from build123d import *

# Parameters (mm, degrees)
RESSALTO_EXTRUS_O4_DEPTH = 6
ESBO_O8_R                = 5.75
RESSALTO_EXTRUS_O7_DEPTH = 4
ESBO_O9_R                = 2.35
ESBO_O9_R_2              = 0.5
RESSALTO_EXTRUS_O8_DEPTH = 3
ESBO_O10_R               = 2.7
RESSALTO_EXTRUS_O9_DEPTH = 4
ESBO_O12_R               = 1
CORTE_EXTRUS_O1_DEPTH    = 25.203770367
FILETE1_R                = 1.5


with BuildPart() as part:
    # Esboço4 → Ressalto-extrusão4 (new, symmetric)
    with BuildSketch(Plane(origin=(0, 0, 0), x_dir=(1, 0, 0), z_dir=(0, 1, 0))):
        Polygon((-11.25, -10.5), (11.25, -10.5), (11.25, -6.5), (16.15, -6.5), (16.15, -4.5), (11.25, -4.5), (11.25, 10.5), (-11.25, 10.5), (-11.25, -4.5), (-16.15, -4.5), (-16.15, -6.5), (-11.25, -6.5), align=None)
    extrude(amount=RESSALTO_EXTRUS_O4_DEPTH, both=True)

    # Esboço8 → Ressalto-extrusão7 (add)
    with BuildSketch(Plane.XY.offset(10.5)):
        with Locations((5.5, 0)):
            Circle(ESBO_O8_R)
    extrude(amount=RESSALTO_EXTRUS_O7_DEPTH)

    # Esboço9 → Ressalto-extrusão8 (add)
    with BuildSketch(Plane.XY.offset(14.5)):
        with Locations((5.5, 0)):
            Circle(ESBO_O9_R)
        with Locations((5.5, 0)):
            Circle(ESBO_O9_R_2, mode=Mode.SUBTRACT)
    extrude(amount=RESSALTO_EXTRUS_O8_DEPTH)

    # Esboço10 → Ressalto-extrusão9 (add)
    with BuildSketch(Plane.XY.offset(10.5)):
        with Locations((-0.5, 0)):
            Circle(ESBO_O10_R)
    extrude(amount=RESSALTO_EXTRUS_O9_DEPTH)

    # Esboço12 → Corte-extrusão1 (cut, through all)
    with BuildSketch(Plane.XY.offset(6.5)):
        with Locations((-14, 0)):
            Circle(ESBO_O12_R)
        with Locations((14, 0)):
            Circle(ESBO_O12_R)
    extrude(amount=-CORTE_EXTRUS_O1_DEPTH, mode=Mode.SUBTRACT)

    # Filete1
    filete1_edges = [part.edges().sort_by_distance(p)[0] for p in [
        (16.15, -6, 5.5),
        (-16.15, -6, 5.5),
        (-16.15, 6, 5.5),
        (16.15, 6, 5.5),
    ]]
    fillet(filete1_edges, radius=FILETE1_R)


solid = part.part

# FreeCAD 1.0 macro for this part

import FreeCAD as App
import Part
import Sketcher
from FreeCAD import Vector
Q = App.Units.Quantity


def edges_at(feature, points):
    """Names of the edges that pass closest to the given points."""
    edges = feature.Shape.Edges
    near = lambda p: min(range(len(edges)), key=lambda i: edges[i].distToShape(Part.Vertex(*p))[0])
    return sorted({f"Edge{near(p) + 1}" for p in points})

doc = App.newDocument("Part")
body = doc.addObject("PartDesign::Body", "Body")

# Sketch on XZ plane
sketch1 = doc.addObject("Sketcher::SketchObject", "Sketch")
body.addObject(sketch1)
sketch1.AttachmentSupport = (doc.XZ_Plane, [""])
sketch1.MapMode = "FlatFace"
sketch1.addGeometry(Part.LineSegment(Vector(-11.2, 10.5, 0), Vector(11.2, 10.5, 0)), False)
sketch1.addGeometry(Part.LineSegment(Vector(11.2, 10.5, 0), Vector(11.2, 6.5, 0)), False)
sketch1.addGeometry(Part.LineSegment(Vector(11.2, 6.5, 0), Vector(16.1, 6.5, 0)), False)
sketch1.addGeometry(Part.LineSegment(Vector(16.1, 6.5, 0), Vector(16.1, 4.5, 0)), False)
sketch1.addGeometry(Part.LineSegment(Vector(16.1, 4.5, 0), Vector(11.2, 4.5, 0)), False)
sketch1.addGeometry(Part.LineSegment(Vector(11.2, 4.5, 0), Vector(11.2, -10.5, 0)), False)
sketch1.addGeometry(Part.LineSegment(Vector(11.2, -10.5, 0), Vector(-11.2, -10.5, 0)), False)
sketch1.addGeometry(Part.LineSegment(Vector(-11.2, -10.5, 0), Vector(-11.2, 4.5, 0)), False)
sketch1.addGeometry(Part.LineSegment(Vector(-11.2, 4.5, 0), Vector(-16.1, 4.5, 0)), False)
sketch1.addGeometry(Part.LineSegment(Vector(-16.1, 4.5, 0), Vector(-16.1, 6.5, 0)), False)
sketch1.addGeometry(Part.LineSegment(Vector(-16.1, 6.5, 0), Vector(-11.2, 6.5, 0)), False)
sketch1.addGeometry(Part.LineSegment(Vector(-11.2, 6.5, 0), Vector(-11.2, 10.5, 0)), False)
sketch1.addConstraint(Sketcher.Constraint("Coincident", 0, 2, 1, 1))
sketch1.addConstraint(Sketcher.Constraint("Coincident", 1, 2, 2, 1))
sketch1.addConstraint(Sketcher.Constraint("Coincident", 2, 2, 3, 1))
sketch1.addConstraint(Sketcher.Constraint("Coincident", 3, 2, 4, 1))
sketch1.addConstraint(Sketcher.Constraint("Coincident", 4, 2, 5, 1))
sketch1.addConstraint(Sketcher.Constraint("Coincident", 5, 2, 6, 1))
sketch1.addConstraint(Sketcher.Constraint("Coincident", 6, 2, 7, 1))
sketch1.addConstraint(Sketcher.Constraint("Coincident", 7, 2, 8, 1))
sketch1.addConstraint(Sketcher.Constraint("Coincident", 8, 2, 9, 1))
sketch1.addConstraint(Sketcher.Constraint("Coincident", 9, 2, 10, 1))
sketch1.addConstraint(Sketcher.Constraint("Coincident", 10, 2, 11, 1))
sketch1.addConstraint(Sketcher.Constraint("Coincident", 11, 2, 0, 1))
sketch1.addConstraint(Sketcher.Constraint("Horizontal", 0))
sketch1.addConstraint(Sketcher.Constraint("Vertical", 1))
sketch1.addConstraint(Sketcher.Constraint("Horizontal", 2))
sketch1.addConstraint(Sketcher.Constraint("Vertical", 3))
sketch1.addConstraint(Sketcher.Constraint("Horizontal", 4))
sketch1.addConstraint(Sketcher.Constraint("Vertical", 5))
sketch1.addConstraint(Sketcher.Constraint("Horizontal", 6))
sketch1.addConstraint(Sketcher.Constraint("Vertical", 7))
sketch1.addConstraint(Sketcher.Constraint("Horizontal", 8))
sketch1.addConstraint(Sketcher.Constraint("Vertical", 9))
sketch1.addConstraint(Sketcher.Constraint("Horizontal", 10))
sketch1.addConstraint(Sketcher.Constraint("Vertical", 11))
sketch1.addConstraint(Sketcher.Constraint("Symmetric", 0, 2, 6, 2, -1, 1))
sketch1.addConstraint(Sketcher.Constraint("Symmetric", 4, 2, 7, 2, -2))
sketch1.addConstraint(Sketcher.Constraint("Symmetric", 2, 2, 9, 2, -2))
sketch1.addConstraint(Sketcher.Constraint("Vertical", 7, 2, 10, 2))
sketch1.addConstraint(Sketcher.Constraint("DistanceY", 1, 2, 1, 1, Q("4 mm")))
sketch1.addConstraint(Sketcher.Constraint("DistanceY", 3, 2, 3, 1, Q("2 mm")))
sketch1.addConstraint(Sketcher.Constraint("DistanceY", 5, 2, 5, 1, Q("15 mm")))
sketch1.addConstraint(Sketcher.Constraint("DistanceX", 0, 1, 0, 2, Q("22.5 mm")))
sketch1.addConstraint(Sketcher.Constraint("DistanceX", 2, 1, 2, 2, Q("4.9 mm")))
pad1 = doc.addObject("PartDesign::Pad", "Pad")
body.addObject(pad1)
pad1.Profile = sketch1
pad1.Length = 12
pad1.Midplane = True

# Sketch on XY plane
sketch2 = doc.addObject("Sketcher::SketchObject", "Sketch001")
body.addObject(sketch2)
sketch2.AttachmentSupport = (doc.XY_Plane, [""])
sketch2.MapMode = "FlatFace"
sketch2.AttachmentOffset = App.Placement(Vector(0, 0, 10.5), App.Rotation())
sketch2.addGeometry(Part.Circle(Vector(6, 0, 0), Vector(0, 0, 1), 6), False)
sketch2.addConstraint(Sketcher.Constraint("PointOnObject", 0, 3, -1))
sketch2.addConstraint(Sketcher.Constraint("Diameter", 0, Q("11.5 mm")))
sketch2.addConstraint(Sketcher.Constraint("DistanceX", -1, 1, 0, 3, Q("5.5 mm")))
pad2 = doc.addObject("PartDesign::Pad", "Pad001")
body.addObject(pad2)
pad2.Profile = sketch2
pad2.Length = 4

# Sketch on XY plane
sketch3 = doc.addObject("Sketcher::SketchObject", "Sketch002")
body.addObject(sketch3)
sketch3.AttachmentSupport = (doc.XY_Plane, [""])
sketch3.MapMode = "FlatFace"
sketch3.AttachmentOffset = App.Placement(Vector(0, 0, 14.5), App.Rotation())
sketch3.addGeometry(Part.Circle(Vector(5.5, 0, 0), Vector(0, 0, 1), 2.4), False)
sketch3.addGeometry(Part.Circle(Vector(5.5, 0, 0), Vector(0, 0, 1), 0.5), False)
sketch3.addConstraint(Sketcher.Constraint("Coincident", 1, 3, 0, 3))
sketch3.addConstraint(Sketcher.Constraint("PointOnObject", 0, 3, -1))
sketch3.addConstraint(Sketcher.Constraint("Diameter", 1, Q("1 mm")))
sketch3.addConstraint(Sketcher.Constraint("Diameter", 0, Q("4.7 mm")))
sketch3.addConstraint(Sketcher.Constraint("DistanceX", -1, 1, 0, 3, Q("5.5 mm")))
pad3 = doc.addObject("PartDesign::Pad", "Pad002")
body.addObject(pad3)
pad3.Profile = sketch3
pad3.Length = 3

# Sketch on XY plane
sketch4 = doc.addObject("Sketcher::SketchObject", "Sketch003")
body.addObject(sketch4)
sketch4.AttachmentSupport = (doc.XY_Plane, [""])
sketch4.MapMode = "FlatFace"
sketch4.AttachmentOffset = App.Placement(Vector(0, 0, 10.5), App.Rotation())
sketch4.addGeometry(Part.Circle(Vector(-0.5, 0, 0), Vector(0, 0, 1), 2.7), False)
sketch4.addConstraint(Sketcher.Constraint("PointOnObject", 0, 3, -1))
sketch4.addConstraint(Sketcher.Constraint("Diameter", 0, Q("5.4 mm")))
sketch4.addConstraint(Sketcher.Constraint("DistanceX", 0, 3, -1, 1, Q("0.5 mm")))
pad4 = doc.addObject("PartDesign::Pad", "Pad003")
body.addObject(pad4)
pad4.Profile = sketch4
pad4.Length = 4

# Sketch on XY plane
sketch5 = doc.addObject("Sketcher::SketchObject", "Sketch004")
body.addObject(sketch5)
sketch5.AttachmentSupport = (doc.XY_Plane, [""])
sketch5.MapMode = "FlatFace"
sketch5.AttachmentOffset = App.Placement(Vector(0, 0, 6.5), App.Rotation())
sketch5.addGeometry(Part.Circle(Vector(-14, 0, 0), Vector(0, 0, 1), 1), False)
sketch5.addGeometry(Part.Circle(Vector(14, 0, 0), Vector(0, 0, 1), 1), False)
sketch5.addConstraint(Sketcher.Constraint("Equal", 0, 1))
sketch5.addConstraint(Sketcher.Constraint("Symmetric", 0, 3, 1, 3, -1, 1))
sketch5.addConstraint(Sketcher.Constraint("PointOnObject", 0, 3, -1))
sketch5.addConstraint(Sketcher.Constraint("Diameter", 0, Q("2 mm")))
sketch5.addConstraint(Sketcher.Constraint("DistanceX", 0, 3, -1, 1, Q("14 mm")))
pocket1 = doc.addObject("PartDesign::Pocket", "Pocket")
body.addObject(pocket1)
pocket1.Profile = sketch5
pocket1.Type = "ThroughAll"
doc.recompute()

fillet = doc.addObject("PartDesign::Fillet", "Fillet")
body.addObject(fillet)
fillet.Base = (pocket1, edges_at(pocket1, [
    (16.15, -6, 5.5),
    (-16.15, -6, 5.5),
    (-16.15, 6, 5.5),
    (16.15, 6, 5.5),
]))
fillet.Radius = 1.5

doc.recompute()
